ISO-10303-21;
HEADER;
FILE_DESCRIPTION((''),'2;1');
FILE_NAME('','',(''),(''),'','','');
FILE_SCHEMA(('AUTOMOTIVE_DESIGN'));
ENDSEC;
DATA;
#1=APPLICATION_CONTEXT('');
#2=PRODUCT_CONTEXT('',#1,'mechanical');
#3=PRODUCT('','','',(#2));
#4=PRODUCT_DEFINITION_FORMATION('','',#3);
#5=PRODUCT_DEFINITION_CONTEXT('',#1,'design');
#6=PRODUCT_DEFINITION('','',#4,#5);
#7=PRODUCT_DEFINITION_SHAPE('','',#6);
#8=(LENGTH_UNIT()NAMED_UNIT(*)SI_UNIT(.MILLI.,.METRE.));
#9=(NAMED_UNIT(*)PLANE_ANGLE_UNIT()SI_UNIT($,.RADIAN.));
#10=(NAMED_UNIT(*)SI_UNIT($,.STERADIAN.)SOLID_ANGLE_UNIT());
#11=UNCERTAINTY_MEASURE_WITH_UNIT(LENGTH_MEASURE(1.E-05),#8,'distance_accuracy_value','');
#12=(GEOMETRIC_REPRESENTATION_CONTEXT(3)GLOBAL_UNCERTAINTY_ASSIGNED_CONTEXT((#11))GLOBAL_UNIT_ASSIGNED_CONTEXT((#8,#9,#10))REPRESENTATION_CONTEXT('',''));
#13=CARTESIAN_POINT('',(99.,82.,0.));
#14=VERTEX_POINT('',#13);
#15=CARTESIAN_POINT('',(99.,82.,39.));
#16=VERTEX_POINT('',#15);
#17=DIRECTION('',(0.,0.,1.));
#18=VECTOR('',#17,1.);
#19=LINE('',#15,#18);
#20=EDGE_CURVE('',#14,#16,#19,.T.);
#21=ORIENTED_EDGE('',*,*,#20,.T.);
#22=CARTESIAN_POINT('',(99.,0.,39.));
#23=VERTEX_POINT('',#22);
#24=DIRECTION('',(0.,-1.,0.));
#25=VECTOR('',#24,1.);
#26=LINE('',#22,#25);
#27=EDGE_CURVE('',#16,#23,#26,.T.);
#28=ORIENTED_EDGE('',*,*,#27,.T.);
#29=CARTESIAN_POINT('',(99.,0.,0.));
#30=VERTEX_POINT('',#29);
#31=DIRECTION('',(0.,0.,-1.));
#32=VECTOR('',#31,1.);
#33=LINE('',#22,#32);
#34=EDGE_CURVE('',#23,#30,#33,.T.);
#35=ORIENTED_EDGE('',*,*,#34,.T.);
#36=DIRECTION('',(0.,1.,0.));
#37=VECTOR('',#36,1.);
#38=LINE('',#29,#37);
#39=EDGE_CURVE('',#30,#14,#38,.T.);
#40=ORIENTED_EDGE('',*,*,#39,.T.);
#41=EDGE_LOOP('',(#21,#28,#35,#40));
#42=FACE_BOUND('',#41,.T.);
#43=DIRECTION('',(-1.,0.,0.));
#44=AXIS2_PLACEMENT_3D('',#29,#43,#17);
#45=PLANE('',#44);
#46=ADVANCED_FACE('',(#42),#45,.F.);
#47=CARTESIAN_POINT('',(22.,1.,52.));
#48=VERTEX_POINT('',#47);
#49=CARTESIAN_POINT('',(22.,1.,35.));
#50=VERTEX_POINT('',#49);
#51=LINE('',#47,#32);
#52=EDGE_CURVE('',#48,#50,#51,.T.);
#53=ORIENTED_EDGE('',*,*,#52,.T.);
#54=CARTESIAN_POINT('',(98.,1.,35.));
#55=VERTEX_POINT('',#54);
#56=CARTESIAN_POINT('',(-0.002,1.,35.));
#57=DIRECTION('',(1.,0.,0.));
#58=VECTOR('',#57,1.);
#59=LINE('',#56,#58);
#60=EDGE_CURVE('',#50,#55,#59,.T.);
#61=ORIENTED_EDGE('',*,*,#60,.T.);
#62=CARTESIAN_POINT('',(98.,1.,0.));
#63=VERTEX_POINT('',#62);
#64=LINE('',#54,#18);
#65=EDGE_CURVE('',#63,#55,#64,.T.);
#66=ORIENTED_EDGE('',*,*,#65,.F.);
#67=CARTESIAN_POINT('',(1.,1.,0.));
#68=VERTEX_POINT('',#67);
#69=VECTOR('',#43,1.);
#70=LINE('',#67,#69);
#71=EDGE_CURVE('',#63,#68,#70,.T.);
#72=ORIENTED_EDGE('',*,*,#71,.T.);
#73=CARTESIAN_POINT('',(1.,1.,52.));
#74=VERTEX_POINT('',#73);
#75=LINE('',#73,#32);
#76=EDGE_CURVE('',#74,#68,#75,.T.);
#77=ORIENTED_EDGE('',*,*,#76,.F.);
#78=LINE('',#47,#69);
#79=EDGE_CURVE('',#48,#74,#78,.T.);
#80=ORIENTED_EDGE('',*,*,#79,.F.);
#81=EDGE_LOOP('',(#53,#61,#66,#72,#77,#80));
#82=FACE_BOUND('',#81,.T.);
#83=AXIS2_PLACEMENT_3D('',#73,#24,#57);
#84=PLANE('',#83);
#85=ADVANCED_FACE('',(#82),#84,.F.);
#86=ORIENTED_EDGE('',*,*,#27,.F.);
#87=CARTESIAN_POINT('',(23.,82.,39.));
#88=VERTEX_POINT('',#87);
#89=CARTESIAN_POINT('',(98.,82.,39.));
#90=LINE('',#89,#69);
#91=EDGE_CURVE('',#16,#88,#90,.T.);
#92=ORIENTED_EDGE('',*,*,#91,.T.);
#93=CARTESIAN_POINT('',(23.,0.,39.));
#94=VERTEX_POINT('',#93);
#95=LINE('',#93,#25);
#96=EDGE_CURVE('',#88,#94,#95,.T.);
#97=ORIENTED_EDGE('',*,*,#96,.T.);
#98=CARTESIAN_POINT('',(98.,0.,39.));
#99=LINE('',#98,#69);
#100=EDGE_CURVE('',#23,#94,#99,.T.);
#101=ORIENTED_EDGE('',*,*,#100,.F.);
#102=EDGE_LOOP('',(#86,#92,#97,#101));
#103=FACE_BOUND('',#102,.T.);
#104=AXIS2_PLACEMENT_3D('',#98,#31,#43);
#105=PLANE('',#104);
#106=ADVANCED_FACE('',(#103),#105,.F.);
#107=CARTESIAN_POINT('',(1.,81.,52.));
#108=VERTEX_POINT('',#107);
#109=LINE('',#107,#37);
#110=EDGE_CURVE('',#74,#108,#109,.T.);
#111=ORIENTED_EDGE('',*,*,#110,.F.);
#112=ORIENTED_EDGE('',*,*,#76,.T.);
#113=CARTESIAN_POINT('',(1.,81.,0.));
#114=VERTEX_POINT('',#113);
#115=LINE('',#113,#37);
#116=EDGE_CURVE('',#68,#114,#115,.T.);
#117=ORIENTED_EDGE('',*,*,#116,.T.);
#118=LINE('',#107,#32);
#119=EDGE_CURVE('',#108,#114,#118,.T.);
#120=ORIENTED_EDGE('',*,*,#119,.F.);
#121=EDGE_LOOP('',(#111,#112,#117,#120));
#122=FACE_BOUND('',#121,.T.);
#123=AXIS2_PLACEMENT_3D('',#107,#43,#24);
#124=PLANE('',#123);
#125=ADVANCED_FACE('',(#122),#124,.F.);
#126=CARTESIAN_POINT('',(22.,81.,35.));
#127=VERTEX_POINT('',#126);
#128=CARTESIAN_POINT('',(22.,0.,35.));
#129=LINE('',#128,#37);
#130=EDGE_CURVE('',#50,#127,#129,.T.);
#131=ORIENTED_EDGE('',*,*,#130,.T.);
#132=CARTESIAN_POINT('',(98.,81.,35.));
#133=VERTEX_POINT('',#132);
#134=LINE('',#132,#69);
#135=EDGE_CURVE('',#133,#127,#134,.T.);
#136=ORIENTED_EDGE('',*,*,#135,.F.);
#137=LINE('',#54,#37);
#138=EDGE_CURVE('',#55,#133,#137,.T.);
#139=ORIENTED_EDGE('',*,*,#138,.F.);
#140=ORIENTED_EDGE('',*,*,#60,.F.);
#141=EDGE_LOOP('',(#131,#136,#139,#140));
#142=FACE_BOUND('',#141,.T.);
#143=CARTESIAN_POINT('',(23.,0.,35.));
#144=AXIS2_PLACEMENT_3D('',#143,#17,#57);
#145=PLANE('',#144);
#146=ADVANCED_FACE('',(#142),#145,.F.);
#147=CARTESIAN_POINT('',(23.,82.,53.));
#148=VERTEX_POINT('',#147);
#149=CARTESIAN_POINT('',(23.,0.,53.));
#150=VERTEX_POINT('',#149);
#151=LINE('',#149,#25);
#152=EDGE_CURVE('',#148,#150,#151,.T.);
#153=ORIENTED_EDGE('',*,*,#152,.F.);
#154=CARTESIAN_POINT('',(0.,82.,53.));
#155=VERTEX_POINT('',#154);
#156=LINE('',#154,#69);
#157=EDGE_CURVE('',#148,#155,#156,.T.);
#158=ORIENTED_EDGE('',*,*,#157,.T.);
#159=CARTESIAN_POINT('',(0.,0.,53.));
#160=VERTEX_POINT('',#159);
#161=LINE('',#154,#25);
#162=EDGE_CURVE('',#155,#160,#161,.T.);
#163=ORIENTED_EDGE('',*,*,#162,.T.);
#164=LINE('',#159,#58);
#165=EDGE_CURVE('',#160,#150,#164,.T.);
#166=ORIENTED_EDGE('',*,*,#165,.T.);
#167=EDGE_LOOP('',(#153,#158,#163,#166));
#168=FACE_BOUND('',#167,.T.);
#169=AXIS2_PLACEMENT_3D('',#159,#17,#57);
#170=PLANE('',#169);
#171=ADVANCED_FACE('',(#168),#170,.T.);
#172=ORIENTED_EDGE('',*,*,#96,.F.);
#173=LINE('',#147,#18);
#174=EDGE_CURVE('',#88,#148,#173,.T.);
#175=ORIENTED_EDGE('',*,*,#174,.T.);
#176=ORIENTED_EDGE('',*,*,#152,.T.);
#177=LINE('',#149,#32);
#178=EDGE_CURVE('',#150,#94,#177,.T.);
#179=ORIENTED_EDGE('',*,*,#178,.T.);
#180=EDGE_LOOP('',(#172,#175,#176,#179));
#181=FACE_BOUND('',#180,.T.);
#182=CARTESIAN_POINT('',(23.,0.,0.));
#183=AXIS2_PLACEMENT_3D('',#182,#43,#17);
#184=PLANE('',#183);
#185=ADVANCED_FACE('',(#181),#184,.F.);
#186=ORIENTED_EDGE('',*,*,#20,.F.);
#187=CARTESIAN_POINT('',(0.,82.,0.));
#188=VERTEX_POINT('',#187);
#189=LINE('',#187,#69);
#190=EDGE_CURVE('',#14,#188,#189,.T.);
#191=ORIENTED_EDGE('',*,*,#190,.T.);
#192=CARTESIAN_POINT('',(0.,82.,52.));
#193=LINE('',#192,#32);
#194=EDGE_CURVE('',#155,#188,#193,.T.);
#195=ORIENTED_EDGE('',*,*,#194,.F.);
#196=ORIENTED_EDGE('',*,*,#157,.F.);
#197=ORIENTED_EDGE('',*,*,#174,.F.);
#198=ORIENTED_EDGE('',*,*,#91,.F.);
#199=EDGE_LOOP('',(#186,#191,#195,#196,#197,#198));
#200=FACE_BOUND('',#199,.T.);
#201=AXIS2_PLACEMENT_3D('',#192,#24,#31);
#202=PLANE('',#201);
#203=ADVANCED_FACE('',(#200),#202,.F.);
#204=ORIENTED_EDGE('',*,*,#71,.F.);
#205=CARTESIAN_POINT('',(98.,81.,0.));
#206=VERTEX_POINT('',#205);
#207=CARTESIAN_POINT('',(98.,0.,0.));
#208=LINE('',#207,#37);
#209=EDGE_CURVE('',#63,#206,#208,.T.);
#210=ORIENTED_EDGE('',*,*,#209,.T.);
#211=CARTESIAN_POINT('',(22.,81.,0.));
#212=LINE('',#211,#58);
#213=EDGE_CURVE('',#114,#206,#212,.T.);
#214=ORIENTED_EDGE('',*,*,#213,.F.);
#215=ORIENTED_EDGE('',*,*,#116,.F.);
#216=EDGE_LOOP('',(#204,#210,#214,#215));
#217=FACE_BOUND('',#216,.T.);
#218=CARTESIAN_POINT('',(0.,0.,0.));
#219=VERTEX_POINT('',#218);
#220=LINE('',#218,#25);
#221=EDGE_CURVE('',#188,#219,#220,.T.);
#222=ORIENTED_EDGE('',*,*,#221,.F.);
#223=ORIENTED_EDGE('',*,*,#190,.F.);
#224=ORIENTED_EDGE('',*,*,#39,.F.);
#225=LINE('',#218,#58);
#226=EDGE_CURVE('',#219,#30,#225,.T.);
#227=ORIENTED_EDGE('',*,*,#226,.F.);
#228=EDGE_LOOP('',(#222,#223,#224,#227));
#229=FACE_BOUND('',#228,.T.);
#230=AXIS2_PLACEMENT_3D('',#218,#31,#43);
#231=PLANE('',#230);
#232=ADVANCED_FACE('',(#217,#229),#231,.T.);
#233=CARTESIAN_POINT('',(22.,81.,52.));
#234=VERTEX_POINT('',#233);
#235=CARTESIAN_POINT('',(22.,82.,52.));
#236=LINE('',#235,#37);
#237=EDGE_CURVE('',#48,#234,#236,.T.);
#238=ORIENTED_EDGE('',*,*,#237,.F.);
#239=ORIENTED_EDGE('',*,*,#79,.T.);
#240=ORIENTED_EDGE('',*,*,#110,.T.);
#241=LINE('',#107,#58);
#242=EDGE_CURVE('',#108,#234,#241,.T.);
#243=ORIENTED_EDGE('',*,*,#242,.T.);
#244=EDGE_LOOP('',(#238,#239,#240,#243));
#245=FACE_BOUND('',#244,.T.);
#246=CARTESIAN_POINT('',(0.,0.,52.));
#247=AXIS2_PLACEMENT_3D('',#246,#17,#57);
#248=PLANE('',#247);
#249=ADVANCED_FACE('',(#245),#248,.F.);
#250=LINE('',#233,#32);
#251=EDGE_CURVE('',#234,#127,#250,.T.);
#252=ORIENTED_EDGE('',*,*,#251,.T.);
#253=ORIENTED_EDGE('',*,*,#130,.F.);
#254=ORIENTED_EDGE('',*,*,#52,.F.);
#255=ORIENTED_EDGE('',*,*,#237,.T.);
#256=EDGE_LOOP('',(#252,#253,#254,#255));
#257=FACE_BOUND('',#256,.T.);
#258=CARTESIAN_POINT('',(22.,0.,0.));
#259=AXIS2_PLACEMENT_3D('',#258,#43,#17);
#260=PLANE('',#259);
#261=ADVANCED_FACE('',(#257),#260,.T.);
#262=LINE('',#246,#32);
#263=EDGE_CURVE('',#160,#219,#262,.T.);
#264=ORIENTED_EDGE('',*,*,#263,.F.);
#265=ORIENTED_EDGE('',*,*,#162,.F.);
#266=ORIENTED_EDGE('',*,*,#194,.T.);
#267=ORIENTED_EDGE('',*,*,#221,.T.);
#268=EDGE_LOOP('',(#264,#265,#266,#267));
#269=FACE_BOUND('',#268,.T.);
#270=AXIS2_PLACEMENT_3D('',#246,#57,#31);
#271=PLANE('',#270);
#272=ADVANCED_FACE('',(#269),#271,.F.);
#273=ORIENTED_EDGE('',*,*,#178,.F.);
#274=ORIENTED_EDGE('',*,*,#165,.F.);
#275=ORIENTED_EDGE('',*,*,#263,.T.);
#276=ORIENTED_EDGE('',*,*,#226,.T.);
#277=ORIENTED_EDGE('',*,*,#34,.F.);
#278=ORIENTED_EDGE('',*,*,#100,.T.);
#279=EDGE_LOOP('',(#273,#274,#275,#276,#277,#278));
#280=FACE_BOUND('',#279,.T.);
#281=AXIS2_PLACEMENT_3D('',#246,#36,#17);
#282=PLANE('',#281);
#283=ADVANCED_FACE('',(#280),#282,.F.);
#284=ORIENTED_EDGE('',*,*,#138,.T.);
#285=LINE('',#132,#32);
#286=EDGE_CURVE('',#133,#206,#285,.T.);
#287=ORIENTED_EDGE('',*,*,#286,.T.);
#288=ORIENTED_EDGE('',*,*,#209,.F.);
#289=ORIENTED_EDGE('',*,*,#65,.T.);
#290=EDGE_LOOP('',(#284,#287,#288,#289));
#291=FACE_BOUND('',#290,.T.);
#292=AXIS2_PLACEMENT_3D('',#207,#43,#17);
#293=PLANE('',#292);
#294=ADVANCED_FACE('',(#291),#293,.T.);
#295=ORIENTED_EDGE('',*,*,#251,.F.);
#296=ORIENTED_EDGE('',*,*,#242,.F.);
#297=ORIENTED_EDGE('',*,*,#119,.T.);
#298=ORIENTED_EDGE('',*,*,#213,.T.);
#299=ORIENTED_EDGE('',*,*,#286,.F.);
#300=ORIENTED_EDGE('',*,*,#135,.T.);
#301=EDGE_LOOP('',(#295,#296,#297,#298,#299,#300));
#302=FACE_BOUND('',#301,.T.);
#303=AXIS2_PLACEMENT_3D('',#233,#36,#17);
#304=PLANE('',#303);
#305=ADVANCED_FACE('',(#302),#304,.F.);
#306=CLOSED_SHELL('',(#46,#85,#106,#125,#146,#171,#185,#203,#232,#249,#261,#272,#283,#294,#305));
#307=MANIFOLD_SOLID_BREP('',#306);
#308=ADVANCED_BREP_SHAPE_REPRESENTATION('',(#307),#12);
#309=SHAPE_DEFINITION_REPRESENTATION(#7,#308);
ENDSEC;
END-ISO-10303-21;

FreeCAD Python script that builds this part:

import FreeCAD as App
import Part
import Sketcher
from FreeCAD import Vector

doc = App.newDocument("Part")
body = doc.addObject("PartDesign::Body", "Body")

sketch1 = body.newObject("Sketcher::SketchObject", "Sketch")
sketch1.AttachmentSupport = (doc.getObject("XY_Plane"), [""])
sketch1.MapMode = "FlatFace"
sketch1.addGeometry([
    Part.LineSegment(Vector(22, 81, 0), Vector(22, 82, 0)),
    Part.LineSegment(Vector(22, 82, 0), Vector(0, 82, 0)),
    Part.LineSegment(Vector(0, 82, 0), Vector(0, 0, 0)),
    Part.LineSegment(Vector(0, 0, 0), Vector(22, 0, 0)),
    Part.LineSegment(Vector(22, 0, 0), Vector(22, 1, 0)),
    Part.LineSegment(Vector(22, 1, 0), Vector(1, 1, 0)),
    Part.LineSegment(Vector(1, 1, 0), Vector(1, 81, 0)),
    Part.LineSegment(Vector(1, 81, 0), Vector(22, 81, 0)),
], False)
sketch1.addConstraint([
    Sketcher.Constraint("Coincident", 0, 2, 1, 1),
    Sketcher.Constraint("Coincident", 1, 2, 2, 1),
    Sketcher.Constraint("Coincident", 2, 2, 3, 1),
    Sketcher.Constraint("Coincident", 3, 2, 4, 1),
    Sketcher.Constraint("Coincident", 4, 2, 5, 1),
    Sketcher.Constraint("Coincident", 5, 2, 6, 1),
    Sketcher.Constraint("Coincident", 6, 2, 7, 1),
    Sketcher.Constraint("Coincident", 7, 2, 0, 1),
    Sketcher.Constraint("Vertical", 0),
    Sketcher.Constraint("Horizontal", 1),
    Sketcher.Constraint("Vertical", 2),
    Sketcher.Constraint("Horizontal", 3),
    Sketcher.Constraint("Vertical", 4),
    Sketcher.Constraint("Horizontal", 5),
    Sketcher.Constraint("Vertical", 6),
    Sketcher.Constraint("Horizontal", 7),
    Sketcher.Constraint("Coincident", 2, 2, -1, 1),
    Sketcher.Constraint("Vertical", 0, 2, 3, 2),
    Sketcher.Constraint("Equal", 0, 4),
    Sketcher.Constraint("DistanceX", 1, 2, 1, 1, 22.0),
    Sketcher.Constraint("DistanceX", 5, 2, 5, 1, 21.0),
    Sketcher.Constraint("DistanceY", 0, 1, 0, 2, 1.0),
    Sketcher.Constraint("DistanceY", 2, 2, 2, 1, 82.0),
])
pad1 = body.newObject("PartDesign::Pad", "Pad")
pad1.Profile = sketch1
pad1.Length = 52

sketch2 = body.newObject("Sketcher::SketchObject", "Sketch001")
sketch2.AttachmentSupport = (doc.getObject("XY_Plane"), [""])
sketch2.MapMode = "FlatFace"
sketch2.AttachmentOffset = App.Placement(Vector(0, 0, 52), App.Rotation())
sketch2.addGeometry([
    Part.LineSegment(Vector(0, 82, 0), Vector(0, 0, 0)),
    Part.LineSegment(Vector(0, 0, 0), Vector(22, 0, 0)),
    Part.LineSegment(Vector(22, 0, 0), Vector(22, 82, 0)),
    Part.LineSegment(Vector(22, 82, 0), Vector(0, 82, 0)),
], False)
sketch2.addConstraint([
    Sketcher.Constraint("Coincident", 0, 2, 1, 1),
    Sketcher.Constraint("Coincident", 1, 2, 2, 1),
    Sketcher.Constraint("Coincident", 2, 2, 3, 1),
    Sketcher.Constraint("Coincident", 3, 2, 0, 1),
    Sketcher.Constraint("Vertical", 0),
    Sketcher.Constraint("Horizontal", 1),
    Sketcher.Constraint("Vertical", 2),
    Sketcher.Constraint("Horizontal", 3),
    Sketcher.Constraint("Coincident", 0, 2, -1, 1),
    Sketcher.Constraint("DistanceX", 1, 1, 1, 2, 22.0),
    Sketcher.Constraint("DistanceY", 0, 2, 0, 1, 82.0),
])
pad2 = body.newObject("PartDesign::Pad", "Pad001")
pad2.Profile = sketch2
pad2.Length = 1

sketch3 = body.newObject("Sketcher::SketchObject", "Sketch002")
sketch3.AttachmentSupport = (doc.getObject("YZ_Plane"), [""])
sketch3.MapMode = "FlatFace"
sketch3.AttachmentOffset = App.Placement(Vector(0, 0, 22), App.Rotation())
sketch3.addGeometry([
    Part.LineSegment(Vector(82, 53, 0), Vector(0, 53, 0)),
    Part.LineSegment(Vector(0, 53, 0), Vector(0, 35, 0)),
    Part.LineSegment(Vector(0, 35, 0), Vector(82, 35, 0)),
    Part.LineSegment(Vector(82, 35, 0), Vector(82, 53, 0)),
], False)
sketch3.addConstraint([
    Sketcher.Constraint("Coincident", 0, 2, 1, 1),
    Sketcher.Constraint("Coincident", 1, 2, 2, 1),
    Sketcher.Constraint("Coincident", 2, 2, 3, 1),
    Sketcher.Constraint("Coincident", 3, 2, 0, 1),
    Sketcher.Constraint("Horizontal", 0),
    Sketcher.Constraint("Vertical", 1),
    Sketcher.Constraint("Horizontal", 2),
    Sketcher.Constraint("Vertical", 3),
    Sketcher.Constraint("PointOnObject", 0, 2, -2),
    Sketcher.Constraint("DistanceX", 0, 2, 0, 1, 82.0),
    Sketcher.Constraint("DistanceY", 1, 2, 1, 1, 18.0),
    Sketcher.Constraint("DistanceY", -1, 1, 0, 2, 53.0),
])
pad3 = body.newObject("PartDesign::Pad", "Pad002")
pad3.Profile = sketch3
pad3.Length = 1

sketch4 = body.newObject("Sketcher::SketchObject", "Sketch003")
sketch4.AttachmentSupport = (doc.getObject("YZ_Plane"), [""])
sketch4.MapMode = "FlatFace"
sketch4.AttachmentOffset = App.Placement(Vector(0, 0, 22), App.Rotation())
sketch4.addGeometry([
    Part.LineSegment(Vector(0, 39, 0), Vector(0, 0, 0)),
    Part.LineSegment(Vector(0, 0, 0), Vector(1, 0, 0)),
    Part.LineSegment(Vector(1, 0, 0), Vector(1, 35, 0)),
    Part.LineSegment(Vector(1, 35, 0), Vector(81, 35, 0)),
    Part.LineSegment(Vector(81, 35, 0), Vector(81, 0, 0)),
    Part.LineSegment(Vector(81, 0, 0), Vector(82, 0, 0)),
    Part.LineSegment(Vector(82, 0, 0), Vector(82, 39, 0)),
    Part.LineSegment(Vector(82, 39, 0), Vector(0, 39, 0)),
], False)
sketch4.addConstraint([
    Sketcher.Constraint("Coincident", 0, 2, 1, 1),
    Sketcher.Constraint("Coincident", 1, 2, 2, 1),
    Sketcher.Constraint("Coincident", 2, 2, 3, 1),
    Sketcher.Constraint("Coincident", 3, 2, 4, 1),
    Sketcher.Constraint("Coincident", 4, 2, 5, 1),
    Sketcher.Constraint("Coincident", 5, 2, 6, 1),
    Sketcher.Constraint("Coincident", 6, 2, 7, 1),
    Sketcher.Constraint("Coincident", 7, 2, 0, 1),
    Sketcher.Constraint("Vertical", 0),
    Sketcher.Constraint("Horizontal", 1),
    Sketcher.Constraint("Vertical", 2),
    Sketcher.Constraint("Horizontal", 3),
    Sketcher.Constraint("Vertical", 4),
    Sketcher.Constraint("Horizontal", 5),
    Sketcher.Constraint("Vertical", 6),
    Sketcher.Constraint("Horizontal", 7),
    Sketcher.Constraint("Coincident", 0, 2, -1, 1),
    Sketcher.Constraint("PointOnObject", 4, 2, -1),
    Sketcher.Constraint("Equal", 1, 5),
    Sketcher.Constraint("DistanceX", 1, 1, 1, 2, 1.0),
    Sketcher.Constraint("DistanceX", 3, 1, 3, 2, 80.0),
    Sketcher.Constraint("DistanceY", 0, 2, 0, 1, 39.0),
    Sketcher.Constraint("DistanceY", 2, 1, 2, 2, 35.0),
])
pad4 = body.newObject("PartDesign::Pad", "Pad003")
pad4.Profile = sketch4
pad4.Length = 76

sketch5 = body.newObject("Sketcher::SketchObject", "Sketch004")
sketch5.AttachmentSupport = (doc.getObject("YZ_Plane"), [""])
sketch5.MapMode = "FlatFace"
sketch5.AttachmentOffset = App.Placement(Vector(0, 0, 98), App.Rotation())
sketch5.addGeometry([
    Part.LineSegment(Vector(82, 39, 0), Vector(0, 39, 0)),
    Part.LineSegment(Vector(0, 39, 0), Vector(0, 0, 0)),
    Part.LineSegment(Vector(0, 0, 0), Vector(82, 0, 0)),
    Part.LineSegment(Vector(82, 0, 0), Vector(82, 39, 0)),
], False)
sketch5.addConstraint([
    Sketcher.Constraint("Coincident", 0, 2, 1, 1),
    Sketcher.Constraint("Coincident", 1, 2, 2, 1),
    Sketcher.Constraint("Coincident", 2, 2, 3, 1),
    Sketcher.Constraint("Coincident", 3, 2, 0, 1),
    Sketcher.Constraint("Horizontal", 0),
    Sketcher.Constraint("Vertical", 1),
    Sketcher.Constraint("Horizontal", 2),
    Sketcher.Constraint("Vertical", 3),
    Sketcher.Constraint("Coincident", 1, 2, -1, 1),
    Sketcher.Constraint("DistanceX", 0, 2, 0, 1, 82.0),
    Sketcher.Constraint("DistanceY", 1, 2, 1, 1, 39.0),
])
pad5 = body.newObject("PartDesign::Pad", "Pad004")
pad5.Profile = sketch5
pad5.Length = 1

doc.recompute()
